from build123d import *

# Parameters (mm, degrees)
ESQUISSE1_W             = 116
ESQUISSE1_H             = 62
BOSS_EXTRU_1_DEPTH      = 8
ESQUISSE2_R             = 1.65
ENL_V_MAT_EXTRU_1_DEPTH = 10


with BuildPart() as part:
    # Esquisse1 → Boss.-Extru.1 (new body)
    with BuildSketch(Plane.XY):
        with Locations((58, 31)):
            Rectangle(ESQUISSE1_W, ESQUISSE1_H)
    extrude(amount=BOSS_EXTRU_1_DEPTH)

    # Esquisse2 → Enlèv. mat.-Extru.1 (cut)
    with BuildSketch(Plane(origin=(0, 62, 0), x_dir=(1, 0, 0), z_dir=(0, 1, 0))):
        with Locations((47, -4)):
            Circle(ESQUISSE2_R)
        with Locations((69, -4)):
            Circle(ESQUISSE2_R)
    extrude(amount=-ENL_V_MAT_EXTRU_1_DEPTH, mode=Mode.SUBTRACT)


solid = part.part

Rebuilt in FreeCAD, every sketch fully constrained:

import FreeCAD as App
import Part
import Sketcher
Q = App.Units.Quantity


def add_polygon(sketch, points):
    """Adds a closed chain of lines whose ends are joined by coincident constraints."""
    first, n = sketch.GeometryCount, len(points)
    for a, b in zip(points, points[1:] + points[:1]):
        sketch.addGeometry(Part.LineSegment(App.Vector(*a, 0), App.Vector(*b, 0)), False)
    for i in range(n):
        sketch.addConstraint(Sketcher.Constraint("Coincident", first + i, 2, first + (i + 1) % n, 1))

doc = App.newDocument("Part")
params = doc.addObject("Spreadsheet::Sheet", "Params")
for row, (alias, value) in enumerate([
    ("sketch1_width", "116 mm"),
    ("sketch1_height", "62 mm"),
    ("pad1_length", "8 mm"),
    ("sketch2_diameter", "3.3 mm"),
    ("pocket1_length", "10 mm"),
], start=1):
    params.set(f"A{row}", alias)
    params.set(f"B{row}", "=" + value)
    params.setAlias(f"B{row}", alias)

body = doc.addObject("PartDesign::Body", "Body")

# Sketch on XY plane
sketch1 = body.newObject("Sketcher::SketchObject", "Sketch")
sketch1.AttachmentSupport = (doc.getObject("XY_Plane"), [""])
sketch1.MapMode = "FlatFace"
add_polygon(sketch1, [(0, 62), (0, 0), (116, 0), (116, 62)])  # lines 0-3
sketch1.addConstraint([
    Sketcher.Constraint("Vertical", 0),
    Sketcher.Constraint("Horizontal", 1),
    Sketcher.Constraint("Vertical", 2),
    Sketcher.Constraint("Horizontal", 3),
    Sketcher.Constraint("Coincident", 0, 2, -1, 1),
    Sketcher.Constraint("DistanceX", 1, 1, 1, 2, Q("116 mm")),
    Sketcher.Constraint("DistanceY", 0, 2, 0, 1, Q("62 mm")),
])
sketch1.setExpression("Constraints[9]", "Params.sketch1_width")
sketch1.setExpression("Constraints[10]", "Params.sketch1_height")
pad1 = body.newObject("PartDesign::Pad", "Pad")
pad1.Profile = sketch1
pad1.setExpression("Length", "Params.pad1_length")

# Sketch on XZ plane
sketch2 = body.newObject("Sketcher::SketchObject", "Sketch001")
sketch2.AttachmentSupport = (doc.getObject("XZ_Plane"), [""])
sketch2.MapMode = "FlatFace"
sketch2.AttachmentOffset = App.Placement(App.Vector(0, 0, -62), App.Rotation())
sketch2.addGeometry([
    Part.Circle(App.Vector(47, 4, 0), App.Vector(0, 0, 1), 1.65),
    Part.Circle(App.Vector(69, 4, 0), App.Vector(0, 0, 1), 1.65),
], False)
sketch2.addConstraint([
    Sketcher.Constraint("Equal", 0, 1),
    Sketcher.Constraint("Horizontal", 0, 3, 1, 3),
    Sketcher.Constraint("Diameter", 0, Q("3.3 mm")),
    Sketcher.Constraint("DistanceX", -1, 1, 0, 3, Q("47 mm")),
    Sketcher.Constraint("DistanceY", -1, 1, 0, 3, Q("4 mm")),
    Sketcher.Constraint("DistanceX", -1, 1, 1, 3, Q("69 mm")),
])
sketch2.setExpression("Constraints[2]", "Params.sketch2_diameter")
pocket1 = body.newObject("PartDesign::Pocket", "Pocket")
pocket1.Profile = sketch2
pocket1.setExpression("Length", "Params.pocket1_length")
pocket1.Reversed = True

doc.recompute()
